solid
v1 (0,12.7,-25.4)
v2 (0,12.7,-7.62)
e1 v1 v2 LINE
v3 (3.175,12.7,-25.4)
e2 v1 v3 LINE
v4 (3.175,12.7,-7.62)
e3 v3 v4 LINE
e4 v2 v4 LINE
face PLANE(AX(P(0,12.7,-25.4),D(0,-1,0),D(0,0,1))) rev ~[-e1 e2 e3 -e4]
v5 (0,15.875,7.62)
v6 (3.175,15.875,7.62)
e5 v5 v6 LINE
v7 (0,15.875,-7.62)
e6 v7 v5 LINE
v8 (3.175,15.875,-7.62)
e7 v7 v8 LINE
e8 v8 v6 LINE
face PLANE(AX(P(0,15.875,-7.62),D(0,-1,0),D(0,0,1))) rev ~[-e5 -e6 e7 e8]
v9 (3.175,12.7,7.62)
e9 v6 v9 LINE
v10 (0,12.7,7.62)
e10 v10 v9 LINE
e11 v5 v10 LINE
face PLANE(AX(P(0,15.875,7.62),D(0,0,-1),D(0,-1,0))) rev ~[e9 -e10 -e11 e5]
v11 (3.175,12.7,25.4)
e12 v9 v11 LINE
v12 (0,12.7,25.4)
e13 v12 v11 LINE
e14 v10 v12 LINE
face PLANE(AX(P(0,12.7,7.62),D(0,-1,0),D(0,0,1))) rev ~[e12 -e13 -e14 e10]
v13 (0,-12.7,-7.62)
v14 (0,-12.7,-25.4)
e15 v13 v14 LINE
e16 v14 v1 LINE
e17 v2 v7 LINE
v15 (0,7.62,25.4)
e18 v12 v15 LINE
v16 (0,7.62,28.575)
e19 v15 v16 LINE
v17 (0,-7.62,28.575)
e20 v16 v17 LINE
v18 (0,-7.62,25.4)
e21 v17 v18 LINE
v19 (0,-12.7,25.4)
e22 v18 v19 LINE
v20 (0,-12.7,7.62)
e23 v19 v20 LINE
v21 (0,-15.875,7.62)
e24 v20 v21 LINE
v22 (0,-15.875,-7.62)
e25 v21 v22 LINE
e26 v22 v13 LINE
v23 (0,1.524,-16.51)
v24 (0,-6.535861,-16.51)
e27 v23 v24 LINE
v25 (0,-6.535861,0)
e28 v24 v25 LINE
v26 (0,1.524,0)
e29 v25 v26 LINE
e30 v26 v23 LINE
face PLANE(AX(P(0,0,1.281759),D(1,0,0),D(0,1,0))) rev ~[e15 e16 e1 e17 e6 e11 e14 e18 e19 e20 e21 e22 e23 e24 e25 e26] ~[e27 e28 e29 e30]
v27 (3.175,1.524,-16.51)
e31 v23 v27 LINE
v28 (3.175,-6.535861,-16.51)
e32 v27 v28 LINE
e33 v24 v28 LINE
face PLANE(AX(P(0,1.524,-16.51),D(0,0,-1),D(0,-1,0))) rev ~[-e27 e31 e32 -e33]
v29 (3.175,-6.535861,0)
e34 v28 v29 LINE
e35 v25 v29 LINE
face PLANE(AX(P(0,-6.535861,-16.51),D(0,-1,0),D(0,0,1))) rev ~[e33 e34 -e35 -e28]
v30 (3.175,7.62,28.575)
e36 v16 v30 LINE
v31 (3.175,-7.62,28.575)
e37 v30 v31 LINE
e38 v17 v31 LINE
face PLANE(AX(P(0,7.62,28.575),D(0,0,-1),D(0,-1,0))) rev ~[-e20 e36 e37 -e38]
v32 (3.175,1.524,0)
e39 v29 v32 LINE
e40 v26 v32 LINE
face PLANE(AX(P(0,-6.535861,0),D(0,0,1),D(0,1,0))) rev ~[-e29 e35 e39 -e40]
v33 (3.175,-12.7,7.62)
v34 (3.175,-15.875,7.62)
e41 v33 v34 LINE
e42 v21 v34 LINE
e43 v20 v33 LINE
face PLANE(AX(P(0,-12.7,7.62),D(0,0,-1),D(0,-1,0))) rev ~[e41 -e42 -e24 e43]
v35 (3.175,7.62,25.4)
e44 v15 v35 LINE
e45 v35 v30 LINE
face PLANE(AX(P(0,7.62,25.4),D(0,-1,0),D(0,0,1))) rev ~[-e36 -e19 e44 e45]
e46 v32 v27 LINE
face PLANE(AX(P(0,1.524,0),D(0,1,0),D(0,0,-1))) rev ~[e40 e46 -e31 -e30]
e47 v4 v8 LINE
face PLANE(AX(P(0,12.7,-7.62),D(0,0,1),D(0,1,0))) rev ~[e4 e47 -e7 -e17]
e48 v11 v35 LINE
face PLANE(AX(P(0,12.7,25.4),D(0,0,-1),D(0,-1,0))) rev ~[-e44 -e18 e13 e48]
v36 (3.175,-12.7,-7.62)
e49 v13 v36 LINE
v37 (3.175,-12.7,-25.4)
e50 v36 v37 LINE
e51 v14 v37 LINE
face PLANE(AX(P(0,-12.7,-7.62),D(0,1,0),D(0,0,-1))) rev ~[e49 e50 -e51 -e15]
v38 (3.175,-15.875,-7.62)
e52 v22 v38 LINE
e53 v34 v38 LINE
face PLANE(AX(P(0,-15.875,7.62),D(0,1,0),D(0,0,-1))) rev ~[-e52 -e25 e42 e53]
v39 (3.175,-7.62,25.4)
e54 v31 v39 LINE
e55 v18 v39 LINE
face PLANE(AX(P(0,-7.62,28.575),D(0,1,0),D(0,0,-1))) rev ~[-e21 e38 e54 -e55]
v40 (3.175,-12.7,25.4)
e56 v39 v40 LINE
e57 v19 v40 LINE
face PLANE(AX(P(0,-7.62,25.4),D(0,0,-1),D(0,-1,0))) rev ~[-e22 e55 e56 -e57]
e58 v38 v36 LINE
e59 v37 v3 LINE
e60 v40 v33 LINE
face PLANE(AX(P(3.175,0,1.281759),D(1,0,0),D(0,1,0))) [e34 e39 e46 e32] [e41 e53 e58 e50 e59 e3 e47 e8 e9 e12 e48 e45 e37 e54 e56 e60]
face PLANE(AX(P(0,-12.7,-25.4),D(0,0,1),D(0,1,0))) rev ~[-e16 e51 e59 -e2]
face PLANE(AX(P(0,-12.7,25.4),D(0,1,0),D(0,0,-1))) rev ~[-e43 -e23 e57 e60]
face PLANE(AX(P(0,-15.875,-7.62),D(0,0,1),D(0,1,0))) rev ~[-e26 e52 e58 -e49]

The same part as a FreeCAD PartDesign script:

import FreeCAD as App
import Part
import Sketcher
Q = App.Units.Quantity

doc = App.newDocument("Part")
body = doc.addObject("PartDesign::Body", "Body")

# Sketch on YZ plane
sketch1 = body.newObject("Sketcher::SketchObject", "Sketch")
sketch1.AttachmentSupport = (doc.getObject("YZ_Plane"), [""])
sketch1.MapMode = "FlatFace"
sketch1.addGeometry(Part.LineSegment(App.Vector(-12.7, -7.6, 0), App.Vector(-12.7, -25.4, 0)), False)
sketch1.addGeometry(Part.LineSegment(App.Vector(-12.7, -25.4, 0), App.Vector(12.7, -25.4, 0)), False)
sketch1.addGeometry(Part.LineSegment(App.Vector(12.7, -25.4, 0), App.Vector(12.7, -7.6, 0)), False)
sketch1.addGeometry(Part.LineSegment(App.Vector(12.7, -7.6, 0), App.Vector(15.9, -7.6, 0)), False)
sketch1.addGeometry(Part.LineSegment(App.Vector(15.9, -7.6, 0), App.Vector(15.9, 7.6, 0)), False)
sketch1.addGeometry(Part.LineSegment(App.Vector(15.9, 7.6, 0), App.Vector(12.7, 7.6, 0)), False)
sketch1.addGeometry(Part.LineSegment(App.Vector(12.7, 7.6, 0), App.Vector(12.7, 25.4, 0)), False)
sketch1.addGeometry(Part.LineSegment(App.Vector(12.7, 25.4, 0), App.Vector(7.6, 25.4, 0)), False)
sketch1.addGeometry(Part.LineSegment(App.Vector(7.6, 25.4, 0), App.Vector(7.6, 28.6, 0)), False)
sketch1.addGeometry(Part.LineSegment(App.Vector(7.6, 28.6, 0), App.Vector(-7.6, 28.6, 0)), False)
sketch1.addGeometry(Part.LineSegment(App.Vector(-7.6, 28.6, 0), App.Vector(-7.6, 25.4, 0)), False)
sketch1.addGeometry(Part.LineSegment(App.Vector(-7.6, 25.4, 0), App.Vector(-12.7, 25.4, 0)), False)
sketch1.addGeometry(Part.LineSegment(App.Vector(-12.7, 25.4, 0), App.Vector(-12.7, 7.6, 0)), False)
sketch1.addGeometry(Part.LineSegment(App.Vector(-12.7, 7.6, 0), App.Vector(-15.9, 7.6, 0)), False)
sketch1.addGeometry(Part.LineSegment(App.Vector(-15.9, 7.6, 0), App.Vector(-15.9, -7.6, 0)), False)
sketch1.addGeometry(Part.LineSegment(App.Vector(-15.9, -7.6, 0), App.Vector(-12.7, -7.6, 0)), False)
sketch1.addGeometry(Part.LineSegment(App.Vector(-6.5, 0, 0), App.Vector(1.5, 0, 0)), False)
sketch1.addGeometry(Part.LineSegment(App.Vector(1.5, 0, 0), App.Vector(1.5, -16.5, 0)), False)
sketch1.addGeometry(Part.LineSegment(App.Vector(1.5, -16.5, 0), App.Vector(-6.5, -16.5, 0)), False)
sketch1.addGeometry(Part.LineSegment(App.Vector(-6.5, -16.5, 0), App.Vector(-6.5, 0, 0)), False)
sketch1.addConstraint(Sketcher.Constraint("Coincident", 0, 2, 1, 1))
sketch1.addConstraint(Sketcher.Constraint("Coincident", 1, 2, 2, 1))
sketch1.addConstraint(Sketcher.Constraint("Coincident", 2, 2, 3, 1))
sketch1.addConstraint(Sketcher.Constraint("Coincident", 3, 2, 4, 1))
sketch1.addConstraint(Sketcher.Constraint("Coincident", 4, 2, 5, 1))
sketch1.addConstraint(Sketcher.Constraint("Coincident", 5, 2, 6, 1))
sketch1.addConstraint(Sketcher.Constraint("Coincident", 6, 2, 7, 1))
sketch1.addConstraint(Sketcher.Constraint("Coincident", 7, 2, 8, 1))
sketch1.addConstraint(Sketcher.Constraint("Coincident", 8, 2, 9, 1))
sketch1.addConstraint(Sketcher.Constraint("Coincident", 9, 2, 10, 1))
sketch1.addConstraint(Sketcher.Constraint("Coincident", 10, 2, 11, 1))
sketch1.addConstraint(Sketcher.Constraint("Coincident", 11, 2, 12, 1))
sketch1.addConstraint(Sketcher.Constraint("Coincident", 12, 2, 13, 1))
sketch1.addConstraint(Sketcher.Constraint("Coincident", 13, 2, 14, 1))
sketch1.addConstraint(Sketcher.Constraint("Coincident", 14, 2, 15, 1))
sketch1.addConstraint(Sketcher.Constraint("Coincident", 15, 2, 0, 1))
sketch1.addConstraint(Sketcher.Constraint("Coincident", 16, 2, 17, 1))
sketch1.addConstraint(Sketcher.Constraint("Coincident", 17, 2, 18, 1))
sketch1.addConstraint(Sketcher.Constraint("Coincident", 18, 2, 19, 1))
sketch1.addConstraint(Sketcher.Constraint("Coincident", 19, 2, 16, 1))
sketch1.addConstraint(Sketcher.Constraint("Vertical", 0))
sketch1.addConstraint(Sketcher.Constraint("Horizontal", 1))
sketch1.addConstraint(Sketcher.Constraint("Vertical", 2))
sketch1.addConstraint(Sketcher.Constraint("Horizontal", 3))
sketch1.addConstraint(Sketcher.Constraint("Vertical", 4))
sketch1.addConstraint(Sketcher.Constraint("Horizontal", 5))
sketch1.addConstraint(Sketcher.Constraint("Vertical", 6))
sketch1.addConstraint(Sketcher.Constraint("Horizontal", 7))
sketch1.addConstraint(Sketcher.Constraint("Vertical", 8))
sketch1.addConstraint(Sketcher.Constraint("Horizontal", 9))
sketch1.addConstraint(Sketcher.Constraint("Vertical", 10))
sketch1.addConstraint(Sketcher.Constraint("Horizontal", 11))
sketch1.addConstraint(Sketcher.Constraint("Vertical", 12))
sketch1.addConstraint(Sketcher.Constraint("Horizontal", 13))
sketch1.addConstraint(Sketcher.Constraint("Vertical", 14))
sketch1.addConstraint(Sketcher.Constraint("Horizontal", 15))
sketch1.addConstraint(Sketcher.Constraint("Horizontal", 16))
sketch1.addConstraint(Sketcher.Constraint("Vertical", 17))
sketch1.addConstraint(Sketcher.Constraint("Horizontal", 18))
sketch1.addConstraint(Sketcher.Constraint("Vertical", 19))
sketch1.addConstraint(Sketcher.Constraint("Symmetric", 0, 2, 6, 2, -1, 1))
sketch1.addConstraint(Sketcher.Constraint("Symmetric", 1, 2, 11, 2, -1, 1))
sketch1.addConstraint(Sketcher.Constraint("Symmetric", 3, 2, 13, 2, -1, 1))
sketch1.addConstraint(Sketcher.Constraint("Symmetric", 5, 2, 12, 2, -2))
sketch1.addConstraint(Sketcher.Constraint("PointOnObject", 16, 2, -1))
sketch1.addConstraint(Sketcher.Constraint("Horizontal", 3, 2, 14, 2))
sketch1.addConstraint(Sketcher.Constraint("Equal", 7, 11))
sketch1.addConstraint(Sketcher.Constraint("Equal", 9, 4))
sketch1.addConstraint(Sketcher.Constraint("Equal", 15, 8))
sketch1.addConstraint(Sketcher.Constraint("DistanceX", 1, 1, 1, 2, Q("1 in")))
sketch1.addConstraint(Sketcher.Constraint("DistanceX", 7, 2, 7, 1, Q("0.2 in")))
sketch1.addConstraint(Sketcher.Constraint("DistanceY", 0, 2, 0, 1, Q("0.7 in")))
sketch1.addConstraint(Sketcher.Constraint("DistanceY", 17, 2, 17, 1, Q("0.65 in")))
sketch1.addConstraint(Sketcher.Constraint("DistanceX", 3, 1, 3, 2, Q("0.125 in")))
sketch1.addConstraint(Sketcher.Constraint("DistanceX", -1, 1, 16, 2, Q("0.06 in")))
sketch1.addConstraint(Sketcher.Constraint("DistanceX", 16, 1, 16, 2, Q("8.059861 mm")))
pad1 = body.newObject("PartDesign::Pad", "Pad")
pad1.Profile = sketch1
pad1.Length = Q("0.125 in")

doc.recompute()
